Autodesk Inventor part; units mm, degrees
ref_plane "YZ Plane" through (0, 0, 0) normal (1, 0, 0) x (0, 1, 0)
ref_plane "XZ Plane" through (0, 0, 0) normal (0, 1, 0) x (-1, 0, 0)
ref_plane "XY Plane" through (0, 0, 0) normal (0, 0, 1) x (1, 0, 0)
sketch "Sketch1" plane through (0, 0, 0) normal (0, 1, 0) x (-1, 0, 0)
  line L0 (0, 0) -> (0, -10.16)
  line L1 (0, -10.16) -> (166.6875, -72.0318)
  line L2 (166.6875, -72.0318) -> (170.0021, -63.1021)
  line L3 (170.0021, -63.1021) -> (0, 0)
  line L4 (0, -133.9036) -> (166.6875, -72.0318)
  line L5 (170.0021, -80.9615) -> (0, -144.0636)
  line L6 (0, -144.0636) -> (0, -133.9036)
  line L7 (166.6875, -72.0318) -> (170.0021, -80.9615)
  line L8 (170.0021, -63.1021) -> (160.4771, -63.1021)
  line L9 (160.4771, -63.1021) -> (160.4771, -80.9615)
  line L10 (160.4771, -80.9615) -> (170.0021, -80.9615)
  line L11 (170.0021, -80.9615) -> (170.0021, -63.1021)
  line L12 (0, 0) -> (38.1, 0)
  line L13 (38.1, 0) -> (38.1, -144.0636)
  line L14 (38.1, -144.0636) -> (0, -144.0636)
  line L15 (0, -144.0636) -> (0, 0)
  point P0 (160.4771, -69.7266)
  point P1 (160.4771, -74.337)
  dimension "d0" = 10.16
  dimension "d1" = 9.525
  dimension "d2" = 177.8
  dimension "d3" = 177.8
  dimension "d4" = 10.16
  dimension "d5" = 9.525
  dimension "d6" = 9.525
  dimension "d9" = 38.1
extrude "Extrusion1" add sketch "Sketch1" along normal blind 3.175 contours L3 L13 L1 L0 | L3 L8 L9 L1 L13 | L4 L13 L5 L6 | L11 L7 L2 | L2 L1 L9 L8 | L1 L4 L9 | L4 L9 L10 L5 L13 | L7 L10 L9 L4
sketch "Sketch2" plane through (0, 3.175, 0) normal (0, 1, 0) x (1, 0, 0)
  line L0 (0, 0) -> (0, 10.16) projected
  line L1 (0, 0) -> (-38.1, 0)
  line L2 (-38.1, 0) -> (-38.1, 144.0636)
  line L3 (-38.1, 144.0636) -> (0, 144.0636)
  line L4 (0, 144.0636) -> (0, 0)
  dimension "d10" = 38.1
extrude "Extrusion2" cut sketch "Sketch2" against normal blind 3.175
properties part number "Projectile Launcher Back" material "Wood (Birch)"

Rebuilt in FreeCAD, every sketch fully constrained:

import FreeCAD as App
import Part
import Sketcher
Q = App.Units.Quantity


def add_polygon(sketch, points):
    """Adds a closed chain of lines whose ends are joined by coincident constraints."""
    first, n = sketch.GeometryCount, len(points)
    for a, b in zip(points, points[1:] + points[:1]):
        sketch.addGeometry(Part.LineSegment(App.Vector(*a, 0), App.Vector(*b, 0)), False)
    for i in range(n):
        sketch.addConstraint(Sketcher.Constraint("Coincident", first + i, 2, first + (i + 1) % n, 1))

doc = App.newDocument("Part")
body = doc.addObject("PartDesign::Body", "Body")

sketch1 = body.newObject("Sketcher::SketchObject", "Sketch")
sketch1.AttachmentSupport = (doc.getObject("XZ_Plane"), [""])
sketch1.MapMode = "FlatFace"
add_polygon(sketch1, [(0, 0), (0, -10.2), (-160.5, -69.7), (-160.5, -74.3), (0, -133.9), (0, -144.1), (-170, -81), (-170, -63.1)])
sketch1.addConstraint(Sketcher.Constraint("Vertical", 0))
sketch1.addConstraint(Sketcher.Constraint("Vertical", 2))
sketch1.addConstraint(Sketcher.Constraint("Vertical", 4))
sketch1.addConstraint(Sketcher.Constraint("Vertical", 6))
sketch1.addConstraint(Sketcher.Constraint("Coincident", 7, 2, -1, 1))
sketch1.addConstraint(Sketcher.Constraint("PointOnObject", 3, 2, -2))
sketch1.addConstraint(Sketcher.Constraint("Parallel", 3, 5))
sketch1.addConstraint(Sketcher.Constraint("Parallel", 1, 7))
sketch1.addConstraint(Sketcher.Constraint("Equal", 0, 4))
sketch1.addConstraint(Sketcher.Constraint("Equal", 1, 3))
sketch1.addConstraint(Sketcher.Constraint("DistanceY", 0, 2, 0, 1, Q("0.4 in")))
sketch1.addConstraint(Sketcher.Constraint("DistanceX", 5, 2, 2, 2, Q("0.375 in")))
sketch1.addConstraint(Sketcher.Constraint("DistanceY", 6, 1, 6, 2, Q("0.703126 in")))
sketch1.addConstraint(Sketcher.Constraint("DistanceX", 1, 2, -1, 1, Q("6.318 in")))
sketch1.addConstraint(Sketcher.Constraint("Distance", 1, Q("6.7392 in")))
pad1 = body.newObject("PartDesign::Pad", "Pad")
pad1.Profile = sketch1
pad1.Length = Q("0.125 in")
pad1.Reversed = True

sketch2 = body.newObject("Sketcher::SketchObject", "Sketch001")
sketch2.AttachmentSupport = (doc.getObject("XZ_Plane"), [""])
sketch2.MapMode = "FlatFace"
sketch2.AttachmentOffset = App.Placement(App.Vector(0, 0, -0.125 * 25.4), App.Rotation())
add_polygon(sketch2, [(-38, 0), (0, 0), (0, -144), (-38, -144)])
sketch2.addConstraint(Sketcher.Constraint("Horizontal", 0))
sketch2.addConstraint(Sketcher.Constraint("Vertical", 1))
sketch2.addConstraint(Sketcher.Constraint("Horizontal", 2))
sketch2.addConstraint(Sketcher.Constraint("Vertical", 3))
sketch2.addConstraint(Sketcher.Constraint("Coincident", 0, 2, -1, 1))
sketch2.addConstraint(Sketcher.Constraint("DistanceX", 0, 1, 0, 2, Q("1.5 in")))
sketch2.addConstraint(Sketcher.Constraint("DistanceY", 1, 2, 1, 1, Q("5.6718 in")))
pocket1 = body.newObject("PartDesign::Pocket", "Pocket")
pocket1.Profile = sketch2
pocket1.Length = Q("0.125 in")
pocket1.Reversed = True

doc.recompute()
